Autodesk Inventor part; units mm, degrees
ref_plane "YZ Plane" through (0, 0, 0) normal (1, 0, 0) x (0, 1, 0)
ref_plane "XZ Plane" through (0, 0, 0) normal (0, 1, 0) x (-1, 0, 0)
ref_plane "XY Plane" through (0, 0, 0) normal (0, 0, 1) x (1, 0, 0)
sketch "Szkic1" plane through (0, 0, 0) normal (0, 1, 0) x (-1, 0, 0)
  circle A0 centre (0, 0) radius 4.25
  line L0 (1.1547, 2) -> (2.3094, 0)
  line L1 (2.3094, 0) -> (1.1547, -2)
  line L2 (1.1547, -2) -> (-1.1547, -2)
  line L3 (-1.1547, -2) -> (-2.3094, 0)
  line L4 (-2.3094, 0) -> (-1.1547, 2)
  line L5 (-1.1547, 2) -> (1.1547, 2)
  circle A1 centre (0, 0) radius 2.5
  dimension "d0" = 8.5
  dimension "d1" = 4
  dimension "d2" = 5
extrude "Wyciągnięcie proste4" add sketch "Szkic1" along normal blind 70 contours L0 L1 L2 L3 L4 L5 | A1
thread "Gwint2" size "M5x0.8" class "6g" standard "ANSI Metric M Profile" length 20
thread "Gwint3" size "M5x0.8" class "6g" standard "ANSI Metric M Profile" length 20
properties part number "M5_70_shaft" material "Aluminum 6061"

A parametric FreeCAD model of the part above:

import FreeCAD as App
import Part
import Sketcher
from FreeCAD import Vector

doc = App.newDocument("Part")
body = doc.addObject("PartDesign::Body", "Body")

# Sketch on XZ plane
sketch1 = doc.addObject("Sketcher::SketchObject", "Sketch")
body.addObject(sketch1)
sketch1.AttachmentSupport = (doc.XZ_Plane, [""])
sketch1.MapMode = "FlatFace"
sketch1.addGeometry(Part.Circle(Vector(0, 0, 0), Vector(0, 0, 1), 2.5), False)
sketch1.addConstraint([
    Sketcher.Constraint("Coincident", 0, 3, -1, 1),
    Sketcher.Constraint("Diameter", 0, 5.0),
])
pad1 = doc.addObject("PartDesign::Pad", "Pad")
body.addObject(pad1)
pad1.Profile = sketch1
pad1.Length = 70
pad1.Reversed = True

doc.recompute()
